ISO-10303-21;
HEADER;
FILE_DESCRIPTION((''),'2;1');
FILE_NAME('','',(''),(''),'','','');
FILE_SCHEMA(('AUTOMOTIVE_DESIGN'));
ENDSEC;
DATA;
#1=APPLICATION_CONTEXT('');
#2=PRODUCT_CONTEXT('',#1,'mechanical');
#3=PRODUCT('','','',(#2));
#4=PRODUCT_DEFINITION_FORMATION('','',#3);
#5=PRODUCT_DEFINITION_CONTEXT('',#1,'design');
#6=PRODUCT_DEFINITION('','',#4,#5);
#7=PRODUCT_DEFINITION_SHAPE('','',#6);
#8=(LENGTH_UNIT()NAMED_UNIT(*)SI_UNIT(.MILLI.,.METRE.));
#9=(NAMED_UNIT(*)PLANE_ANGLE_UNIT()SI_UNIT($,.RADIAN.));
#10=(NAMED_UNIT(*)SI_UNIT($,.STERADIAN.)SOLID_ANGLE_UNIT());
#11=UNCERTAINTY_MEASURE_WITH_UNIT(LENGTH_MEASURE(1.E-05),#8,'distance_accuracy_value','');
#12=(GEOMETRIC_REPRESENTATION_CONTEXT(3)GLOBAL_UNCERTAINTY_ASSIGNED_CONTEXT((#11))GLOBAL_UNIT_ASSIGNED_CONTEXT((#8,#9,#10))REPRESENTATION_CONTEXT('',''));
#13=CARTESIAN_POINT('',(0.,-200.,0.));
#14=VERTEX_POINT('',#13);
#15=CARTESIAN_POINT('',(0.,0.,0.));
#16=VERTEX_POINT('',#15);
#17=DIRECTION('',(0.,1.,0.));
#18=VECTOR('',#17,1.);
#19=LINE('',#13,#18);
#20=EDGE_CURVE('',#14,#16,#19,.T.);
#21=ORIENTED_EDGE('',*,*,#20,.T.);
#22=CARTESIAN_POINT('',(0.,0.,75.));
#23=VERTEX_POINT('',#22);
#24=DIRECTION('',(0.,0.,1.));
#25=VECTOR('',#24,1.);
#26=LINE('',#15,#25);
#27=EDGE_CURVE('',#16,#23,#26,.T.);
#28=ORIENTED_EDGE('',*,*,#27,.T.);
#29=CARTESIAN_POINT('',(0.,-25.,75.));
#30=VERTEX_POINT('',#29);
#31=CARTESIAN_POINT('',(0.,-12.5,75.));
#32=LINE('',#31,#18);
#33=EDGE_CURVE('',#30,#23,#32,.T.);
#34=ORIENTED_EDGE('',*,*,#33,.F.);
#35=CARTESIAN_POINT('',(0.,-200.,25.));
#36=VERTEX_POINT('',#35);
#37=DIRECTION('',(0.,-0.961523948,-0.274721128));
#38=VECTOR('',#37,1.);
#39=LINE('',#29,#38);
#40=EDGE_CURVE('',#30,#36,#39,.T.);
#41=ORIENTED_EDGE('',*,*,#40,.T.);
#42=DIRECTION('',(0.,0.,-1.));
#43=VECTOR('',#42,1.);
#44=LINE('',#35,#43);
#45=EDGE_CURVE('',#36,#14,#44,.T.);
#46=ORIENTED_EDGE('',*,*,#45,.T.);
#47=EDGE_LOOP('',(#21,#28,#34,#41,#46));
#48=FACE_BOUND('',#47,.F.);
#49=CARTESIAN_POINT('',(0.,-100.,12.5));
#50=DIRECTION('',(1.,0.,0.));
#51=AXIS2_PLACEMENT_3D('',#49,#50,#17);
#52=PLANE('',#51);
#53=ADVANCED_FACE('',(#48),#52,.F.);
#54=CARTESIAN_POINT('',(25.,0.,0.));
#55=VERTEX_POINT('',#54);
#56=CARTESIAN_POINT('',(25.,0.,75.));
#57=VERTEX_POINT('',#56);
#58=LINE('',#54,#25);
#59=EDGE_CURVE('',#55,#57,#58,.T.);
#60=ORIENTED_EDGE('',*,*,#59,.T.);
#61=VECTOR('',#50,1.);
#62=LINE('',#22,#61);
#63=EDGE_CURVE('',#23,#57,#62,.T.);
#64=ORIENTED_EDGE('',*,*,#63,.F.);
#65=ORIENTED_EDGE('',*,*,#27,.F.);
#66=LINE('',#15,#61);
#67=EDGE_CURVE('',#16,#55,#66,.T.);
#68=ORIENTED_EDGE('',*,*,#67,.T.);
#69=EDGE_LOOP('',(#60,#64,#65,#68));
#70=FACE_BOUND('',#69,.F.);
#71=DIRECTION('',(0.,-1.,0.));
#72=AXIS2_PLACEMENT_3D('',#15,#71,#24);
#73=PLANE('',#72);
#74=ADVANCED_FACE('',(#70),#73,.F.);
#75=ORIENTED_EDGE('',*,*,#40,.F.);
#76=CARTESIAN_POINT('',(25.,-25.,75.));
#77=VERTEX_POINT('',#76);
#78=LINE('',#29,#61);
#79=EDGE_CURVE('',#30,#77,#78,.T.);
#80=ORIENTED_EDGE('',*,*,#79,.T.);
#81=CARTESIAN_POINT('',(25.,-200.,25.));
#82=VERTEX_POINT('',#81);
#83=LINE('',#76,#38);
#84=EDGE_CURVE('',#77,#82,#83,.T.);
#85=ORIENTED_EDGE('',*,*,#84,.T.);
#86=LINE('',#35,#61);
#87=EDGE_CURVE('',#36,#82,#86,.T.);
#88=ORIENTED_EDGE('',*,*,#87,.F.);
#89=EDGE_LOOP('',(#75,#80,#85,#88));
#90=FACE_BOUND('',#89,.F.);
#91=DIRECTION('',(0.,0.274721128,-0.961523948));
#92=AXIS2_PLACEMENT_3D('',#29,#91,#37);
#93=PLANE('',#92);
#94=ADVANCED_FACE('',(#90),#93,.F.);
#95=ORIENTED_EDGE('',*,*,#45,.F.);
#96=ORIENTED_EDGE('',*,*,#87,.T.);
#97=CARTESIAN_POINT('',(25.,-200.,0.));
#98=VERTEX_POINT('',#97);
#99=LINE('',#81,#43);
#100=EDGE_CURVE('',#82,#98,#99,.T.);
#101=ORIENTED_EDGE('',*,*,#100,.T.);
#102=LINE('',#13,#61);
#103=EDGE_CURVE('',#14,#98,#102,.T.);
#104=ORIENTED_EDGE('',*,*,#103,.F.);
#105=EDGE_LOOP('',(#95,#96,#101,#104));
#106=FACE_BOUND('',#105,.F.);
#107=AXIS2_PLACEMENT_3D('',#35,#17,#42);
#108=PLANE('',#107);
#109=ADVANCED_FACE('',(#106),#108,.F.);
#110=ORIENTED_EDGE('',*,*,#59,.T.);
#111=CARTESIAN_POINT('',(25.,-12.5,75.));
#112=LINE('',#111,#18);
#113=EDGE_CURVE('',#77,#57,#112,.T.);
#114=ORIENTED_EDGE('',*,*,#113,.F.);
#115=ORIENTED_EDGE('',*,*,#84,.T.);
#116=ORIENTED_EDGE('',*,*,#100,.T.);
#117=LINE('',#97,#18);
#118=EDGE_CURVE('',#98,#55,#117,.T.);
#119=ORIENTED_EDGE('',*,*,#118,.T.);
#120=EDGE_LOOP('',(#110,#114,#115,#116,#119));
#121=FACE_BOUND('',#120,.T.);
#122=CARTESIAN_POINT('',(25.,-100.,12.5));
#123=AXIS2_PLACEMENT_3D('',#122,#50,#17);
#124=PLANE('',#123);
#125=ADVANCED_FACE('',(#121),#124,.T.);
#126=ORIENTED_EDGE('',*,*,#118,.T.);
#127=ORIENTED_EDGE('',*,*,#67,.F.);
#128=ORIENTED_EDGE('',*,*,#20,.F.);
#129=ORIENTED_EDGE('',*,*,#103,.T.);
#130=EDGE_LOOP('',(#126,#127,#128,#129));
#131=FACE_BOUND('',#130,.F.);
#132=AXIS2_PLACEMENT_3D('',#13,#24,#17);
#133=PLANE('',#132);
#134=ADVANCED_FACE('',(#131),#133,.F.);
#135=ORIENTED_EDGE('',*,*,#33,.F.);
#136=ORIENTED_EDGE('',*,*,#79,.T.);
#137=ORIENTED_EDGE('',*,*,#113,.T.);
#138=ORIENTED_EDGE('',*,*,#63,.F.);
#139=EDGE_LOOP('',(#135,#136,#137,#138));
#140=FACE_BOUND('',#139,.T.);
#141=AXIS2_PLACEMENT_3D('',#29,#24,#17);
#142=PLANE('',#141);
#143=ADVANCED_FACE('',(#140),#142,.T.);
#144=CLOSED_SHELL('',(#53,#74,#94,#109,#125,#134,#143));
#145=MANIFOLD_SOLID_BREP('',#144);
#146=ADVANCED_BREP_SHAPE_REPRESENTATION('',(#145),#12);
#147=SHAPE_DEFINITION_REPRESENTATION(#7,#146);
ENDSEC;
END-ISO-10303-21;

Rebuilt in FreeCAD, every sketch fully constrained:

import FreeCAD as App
import Part
import Sketcher
Q = App.Units.Quantity

doc = App.newDocument("Part")
body = doc.addObject("PartDesign::Body", "Body")

sketch1 = body.newObject("Sketcher::SketchObject", "Sketch")
sketch1.AttachmentSupport = (doc.getObject("YZ_Plane"), [""])
sketch1.MapMode = "FlatFace"
sketch1.addGeometry(Part.LineSegment(App.Vector(-200, 0, 0), App.Vector(0, 0, 0)), False)
sketch1.addGeometry(Part.LineSegment(App.Vector(0, 0, 0), App.Vector(0, 75, 0)), False)
sketch1.addGeometry(Part.LineSegment(App.Vector(0, 75, 0), App.Vector(-25, 75, 0)), False)
sketch1.addGeometry(Part.LineSegment(App.Vector(-25, 75, 0), App.Vector(-200, 25, 0)), False)
sketch1.addGeometry(Part.LineSegment(App.Vector(-200, 25, 0), App.Vector(-200, 0, 0)), False)
sketch1.addConstraint(Sketcher.Constraint("Coincident", 0, 2, 1, 1))
sketch1.addConstraint(Sketcher.Constraint("Coincident", 1, 2, 2, 1))
sketch1.addConstraint(Sketcher.Constraint("Coincident", 2, 2, 3, 1))
sketch1.addConstraint(Sketcher.Constraint("Coincident", 3, 2, 4, 1))
sketch1.addConstraint(Sketcher.Constraint("Coincident", 4, 2, 0, 1))
sketch1.addConstraint(Sketcher.Constraint("Horizontal", 0))
sketch1.addConstraint(Sketcher.Constraint("Vertical", 1))
sketch1.addConstraint(Sketcher.Constraint("Horizontal", 2))
sketch1.addConstraint(Sketcher.Constraint("Vertical", 4))
sketch1.addConstraint(Sketcher.Constraint("Coincident", 0, 2, -1, 1))
sketch1.addConstraint(Sketcher.Constraint("Equal", 2, 4))
sketch1.addConstraint(Sketcher.Constraint("DistanceX", 0, 1, 0, 2, Q("200 mm")))
sketch1.addConstraint(Sketcher.Constraint("DistanceX", 2, 2, 2, 1, Q("25 mm")))
sketch1.addConstraint(Sketcher.Constraint("DistanceY", 1, 1, 1, 2, Q("75 mm")))
pad1 = body.newObject("PartDesign::Pad", "Pad")
pad1.Profile = sketch1
pad1.Length = 25

doc.recompute()
